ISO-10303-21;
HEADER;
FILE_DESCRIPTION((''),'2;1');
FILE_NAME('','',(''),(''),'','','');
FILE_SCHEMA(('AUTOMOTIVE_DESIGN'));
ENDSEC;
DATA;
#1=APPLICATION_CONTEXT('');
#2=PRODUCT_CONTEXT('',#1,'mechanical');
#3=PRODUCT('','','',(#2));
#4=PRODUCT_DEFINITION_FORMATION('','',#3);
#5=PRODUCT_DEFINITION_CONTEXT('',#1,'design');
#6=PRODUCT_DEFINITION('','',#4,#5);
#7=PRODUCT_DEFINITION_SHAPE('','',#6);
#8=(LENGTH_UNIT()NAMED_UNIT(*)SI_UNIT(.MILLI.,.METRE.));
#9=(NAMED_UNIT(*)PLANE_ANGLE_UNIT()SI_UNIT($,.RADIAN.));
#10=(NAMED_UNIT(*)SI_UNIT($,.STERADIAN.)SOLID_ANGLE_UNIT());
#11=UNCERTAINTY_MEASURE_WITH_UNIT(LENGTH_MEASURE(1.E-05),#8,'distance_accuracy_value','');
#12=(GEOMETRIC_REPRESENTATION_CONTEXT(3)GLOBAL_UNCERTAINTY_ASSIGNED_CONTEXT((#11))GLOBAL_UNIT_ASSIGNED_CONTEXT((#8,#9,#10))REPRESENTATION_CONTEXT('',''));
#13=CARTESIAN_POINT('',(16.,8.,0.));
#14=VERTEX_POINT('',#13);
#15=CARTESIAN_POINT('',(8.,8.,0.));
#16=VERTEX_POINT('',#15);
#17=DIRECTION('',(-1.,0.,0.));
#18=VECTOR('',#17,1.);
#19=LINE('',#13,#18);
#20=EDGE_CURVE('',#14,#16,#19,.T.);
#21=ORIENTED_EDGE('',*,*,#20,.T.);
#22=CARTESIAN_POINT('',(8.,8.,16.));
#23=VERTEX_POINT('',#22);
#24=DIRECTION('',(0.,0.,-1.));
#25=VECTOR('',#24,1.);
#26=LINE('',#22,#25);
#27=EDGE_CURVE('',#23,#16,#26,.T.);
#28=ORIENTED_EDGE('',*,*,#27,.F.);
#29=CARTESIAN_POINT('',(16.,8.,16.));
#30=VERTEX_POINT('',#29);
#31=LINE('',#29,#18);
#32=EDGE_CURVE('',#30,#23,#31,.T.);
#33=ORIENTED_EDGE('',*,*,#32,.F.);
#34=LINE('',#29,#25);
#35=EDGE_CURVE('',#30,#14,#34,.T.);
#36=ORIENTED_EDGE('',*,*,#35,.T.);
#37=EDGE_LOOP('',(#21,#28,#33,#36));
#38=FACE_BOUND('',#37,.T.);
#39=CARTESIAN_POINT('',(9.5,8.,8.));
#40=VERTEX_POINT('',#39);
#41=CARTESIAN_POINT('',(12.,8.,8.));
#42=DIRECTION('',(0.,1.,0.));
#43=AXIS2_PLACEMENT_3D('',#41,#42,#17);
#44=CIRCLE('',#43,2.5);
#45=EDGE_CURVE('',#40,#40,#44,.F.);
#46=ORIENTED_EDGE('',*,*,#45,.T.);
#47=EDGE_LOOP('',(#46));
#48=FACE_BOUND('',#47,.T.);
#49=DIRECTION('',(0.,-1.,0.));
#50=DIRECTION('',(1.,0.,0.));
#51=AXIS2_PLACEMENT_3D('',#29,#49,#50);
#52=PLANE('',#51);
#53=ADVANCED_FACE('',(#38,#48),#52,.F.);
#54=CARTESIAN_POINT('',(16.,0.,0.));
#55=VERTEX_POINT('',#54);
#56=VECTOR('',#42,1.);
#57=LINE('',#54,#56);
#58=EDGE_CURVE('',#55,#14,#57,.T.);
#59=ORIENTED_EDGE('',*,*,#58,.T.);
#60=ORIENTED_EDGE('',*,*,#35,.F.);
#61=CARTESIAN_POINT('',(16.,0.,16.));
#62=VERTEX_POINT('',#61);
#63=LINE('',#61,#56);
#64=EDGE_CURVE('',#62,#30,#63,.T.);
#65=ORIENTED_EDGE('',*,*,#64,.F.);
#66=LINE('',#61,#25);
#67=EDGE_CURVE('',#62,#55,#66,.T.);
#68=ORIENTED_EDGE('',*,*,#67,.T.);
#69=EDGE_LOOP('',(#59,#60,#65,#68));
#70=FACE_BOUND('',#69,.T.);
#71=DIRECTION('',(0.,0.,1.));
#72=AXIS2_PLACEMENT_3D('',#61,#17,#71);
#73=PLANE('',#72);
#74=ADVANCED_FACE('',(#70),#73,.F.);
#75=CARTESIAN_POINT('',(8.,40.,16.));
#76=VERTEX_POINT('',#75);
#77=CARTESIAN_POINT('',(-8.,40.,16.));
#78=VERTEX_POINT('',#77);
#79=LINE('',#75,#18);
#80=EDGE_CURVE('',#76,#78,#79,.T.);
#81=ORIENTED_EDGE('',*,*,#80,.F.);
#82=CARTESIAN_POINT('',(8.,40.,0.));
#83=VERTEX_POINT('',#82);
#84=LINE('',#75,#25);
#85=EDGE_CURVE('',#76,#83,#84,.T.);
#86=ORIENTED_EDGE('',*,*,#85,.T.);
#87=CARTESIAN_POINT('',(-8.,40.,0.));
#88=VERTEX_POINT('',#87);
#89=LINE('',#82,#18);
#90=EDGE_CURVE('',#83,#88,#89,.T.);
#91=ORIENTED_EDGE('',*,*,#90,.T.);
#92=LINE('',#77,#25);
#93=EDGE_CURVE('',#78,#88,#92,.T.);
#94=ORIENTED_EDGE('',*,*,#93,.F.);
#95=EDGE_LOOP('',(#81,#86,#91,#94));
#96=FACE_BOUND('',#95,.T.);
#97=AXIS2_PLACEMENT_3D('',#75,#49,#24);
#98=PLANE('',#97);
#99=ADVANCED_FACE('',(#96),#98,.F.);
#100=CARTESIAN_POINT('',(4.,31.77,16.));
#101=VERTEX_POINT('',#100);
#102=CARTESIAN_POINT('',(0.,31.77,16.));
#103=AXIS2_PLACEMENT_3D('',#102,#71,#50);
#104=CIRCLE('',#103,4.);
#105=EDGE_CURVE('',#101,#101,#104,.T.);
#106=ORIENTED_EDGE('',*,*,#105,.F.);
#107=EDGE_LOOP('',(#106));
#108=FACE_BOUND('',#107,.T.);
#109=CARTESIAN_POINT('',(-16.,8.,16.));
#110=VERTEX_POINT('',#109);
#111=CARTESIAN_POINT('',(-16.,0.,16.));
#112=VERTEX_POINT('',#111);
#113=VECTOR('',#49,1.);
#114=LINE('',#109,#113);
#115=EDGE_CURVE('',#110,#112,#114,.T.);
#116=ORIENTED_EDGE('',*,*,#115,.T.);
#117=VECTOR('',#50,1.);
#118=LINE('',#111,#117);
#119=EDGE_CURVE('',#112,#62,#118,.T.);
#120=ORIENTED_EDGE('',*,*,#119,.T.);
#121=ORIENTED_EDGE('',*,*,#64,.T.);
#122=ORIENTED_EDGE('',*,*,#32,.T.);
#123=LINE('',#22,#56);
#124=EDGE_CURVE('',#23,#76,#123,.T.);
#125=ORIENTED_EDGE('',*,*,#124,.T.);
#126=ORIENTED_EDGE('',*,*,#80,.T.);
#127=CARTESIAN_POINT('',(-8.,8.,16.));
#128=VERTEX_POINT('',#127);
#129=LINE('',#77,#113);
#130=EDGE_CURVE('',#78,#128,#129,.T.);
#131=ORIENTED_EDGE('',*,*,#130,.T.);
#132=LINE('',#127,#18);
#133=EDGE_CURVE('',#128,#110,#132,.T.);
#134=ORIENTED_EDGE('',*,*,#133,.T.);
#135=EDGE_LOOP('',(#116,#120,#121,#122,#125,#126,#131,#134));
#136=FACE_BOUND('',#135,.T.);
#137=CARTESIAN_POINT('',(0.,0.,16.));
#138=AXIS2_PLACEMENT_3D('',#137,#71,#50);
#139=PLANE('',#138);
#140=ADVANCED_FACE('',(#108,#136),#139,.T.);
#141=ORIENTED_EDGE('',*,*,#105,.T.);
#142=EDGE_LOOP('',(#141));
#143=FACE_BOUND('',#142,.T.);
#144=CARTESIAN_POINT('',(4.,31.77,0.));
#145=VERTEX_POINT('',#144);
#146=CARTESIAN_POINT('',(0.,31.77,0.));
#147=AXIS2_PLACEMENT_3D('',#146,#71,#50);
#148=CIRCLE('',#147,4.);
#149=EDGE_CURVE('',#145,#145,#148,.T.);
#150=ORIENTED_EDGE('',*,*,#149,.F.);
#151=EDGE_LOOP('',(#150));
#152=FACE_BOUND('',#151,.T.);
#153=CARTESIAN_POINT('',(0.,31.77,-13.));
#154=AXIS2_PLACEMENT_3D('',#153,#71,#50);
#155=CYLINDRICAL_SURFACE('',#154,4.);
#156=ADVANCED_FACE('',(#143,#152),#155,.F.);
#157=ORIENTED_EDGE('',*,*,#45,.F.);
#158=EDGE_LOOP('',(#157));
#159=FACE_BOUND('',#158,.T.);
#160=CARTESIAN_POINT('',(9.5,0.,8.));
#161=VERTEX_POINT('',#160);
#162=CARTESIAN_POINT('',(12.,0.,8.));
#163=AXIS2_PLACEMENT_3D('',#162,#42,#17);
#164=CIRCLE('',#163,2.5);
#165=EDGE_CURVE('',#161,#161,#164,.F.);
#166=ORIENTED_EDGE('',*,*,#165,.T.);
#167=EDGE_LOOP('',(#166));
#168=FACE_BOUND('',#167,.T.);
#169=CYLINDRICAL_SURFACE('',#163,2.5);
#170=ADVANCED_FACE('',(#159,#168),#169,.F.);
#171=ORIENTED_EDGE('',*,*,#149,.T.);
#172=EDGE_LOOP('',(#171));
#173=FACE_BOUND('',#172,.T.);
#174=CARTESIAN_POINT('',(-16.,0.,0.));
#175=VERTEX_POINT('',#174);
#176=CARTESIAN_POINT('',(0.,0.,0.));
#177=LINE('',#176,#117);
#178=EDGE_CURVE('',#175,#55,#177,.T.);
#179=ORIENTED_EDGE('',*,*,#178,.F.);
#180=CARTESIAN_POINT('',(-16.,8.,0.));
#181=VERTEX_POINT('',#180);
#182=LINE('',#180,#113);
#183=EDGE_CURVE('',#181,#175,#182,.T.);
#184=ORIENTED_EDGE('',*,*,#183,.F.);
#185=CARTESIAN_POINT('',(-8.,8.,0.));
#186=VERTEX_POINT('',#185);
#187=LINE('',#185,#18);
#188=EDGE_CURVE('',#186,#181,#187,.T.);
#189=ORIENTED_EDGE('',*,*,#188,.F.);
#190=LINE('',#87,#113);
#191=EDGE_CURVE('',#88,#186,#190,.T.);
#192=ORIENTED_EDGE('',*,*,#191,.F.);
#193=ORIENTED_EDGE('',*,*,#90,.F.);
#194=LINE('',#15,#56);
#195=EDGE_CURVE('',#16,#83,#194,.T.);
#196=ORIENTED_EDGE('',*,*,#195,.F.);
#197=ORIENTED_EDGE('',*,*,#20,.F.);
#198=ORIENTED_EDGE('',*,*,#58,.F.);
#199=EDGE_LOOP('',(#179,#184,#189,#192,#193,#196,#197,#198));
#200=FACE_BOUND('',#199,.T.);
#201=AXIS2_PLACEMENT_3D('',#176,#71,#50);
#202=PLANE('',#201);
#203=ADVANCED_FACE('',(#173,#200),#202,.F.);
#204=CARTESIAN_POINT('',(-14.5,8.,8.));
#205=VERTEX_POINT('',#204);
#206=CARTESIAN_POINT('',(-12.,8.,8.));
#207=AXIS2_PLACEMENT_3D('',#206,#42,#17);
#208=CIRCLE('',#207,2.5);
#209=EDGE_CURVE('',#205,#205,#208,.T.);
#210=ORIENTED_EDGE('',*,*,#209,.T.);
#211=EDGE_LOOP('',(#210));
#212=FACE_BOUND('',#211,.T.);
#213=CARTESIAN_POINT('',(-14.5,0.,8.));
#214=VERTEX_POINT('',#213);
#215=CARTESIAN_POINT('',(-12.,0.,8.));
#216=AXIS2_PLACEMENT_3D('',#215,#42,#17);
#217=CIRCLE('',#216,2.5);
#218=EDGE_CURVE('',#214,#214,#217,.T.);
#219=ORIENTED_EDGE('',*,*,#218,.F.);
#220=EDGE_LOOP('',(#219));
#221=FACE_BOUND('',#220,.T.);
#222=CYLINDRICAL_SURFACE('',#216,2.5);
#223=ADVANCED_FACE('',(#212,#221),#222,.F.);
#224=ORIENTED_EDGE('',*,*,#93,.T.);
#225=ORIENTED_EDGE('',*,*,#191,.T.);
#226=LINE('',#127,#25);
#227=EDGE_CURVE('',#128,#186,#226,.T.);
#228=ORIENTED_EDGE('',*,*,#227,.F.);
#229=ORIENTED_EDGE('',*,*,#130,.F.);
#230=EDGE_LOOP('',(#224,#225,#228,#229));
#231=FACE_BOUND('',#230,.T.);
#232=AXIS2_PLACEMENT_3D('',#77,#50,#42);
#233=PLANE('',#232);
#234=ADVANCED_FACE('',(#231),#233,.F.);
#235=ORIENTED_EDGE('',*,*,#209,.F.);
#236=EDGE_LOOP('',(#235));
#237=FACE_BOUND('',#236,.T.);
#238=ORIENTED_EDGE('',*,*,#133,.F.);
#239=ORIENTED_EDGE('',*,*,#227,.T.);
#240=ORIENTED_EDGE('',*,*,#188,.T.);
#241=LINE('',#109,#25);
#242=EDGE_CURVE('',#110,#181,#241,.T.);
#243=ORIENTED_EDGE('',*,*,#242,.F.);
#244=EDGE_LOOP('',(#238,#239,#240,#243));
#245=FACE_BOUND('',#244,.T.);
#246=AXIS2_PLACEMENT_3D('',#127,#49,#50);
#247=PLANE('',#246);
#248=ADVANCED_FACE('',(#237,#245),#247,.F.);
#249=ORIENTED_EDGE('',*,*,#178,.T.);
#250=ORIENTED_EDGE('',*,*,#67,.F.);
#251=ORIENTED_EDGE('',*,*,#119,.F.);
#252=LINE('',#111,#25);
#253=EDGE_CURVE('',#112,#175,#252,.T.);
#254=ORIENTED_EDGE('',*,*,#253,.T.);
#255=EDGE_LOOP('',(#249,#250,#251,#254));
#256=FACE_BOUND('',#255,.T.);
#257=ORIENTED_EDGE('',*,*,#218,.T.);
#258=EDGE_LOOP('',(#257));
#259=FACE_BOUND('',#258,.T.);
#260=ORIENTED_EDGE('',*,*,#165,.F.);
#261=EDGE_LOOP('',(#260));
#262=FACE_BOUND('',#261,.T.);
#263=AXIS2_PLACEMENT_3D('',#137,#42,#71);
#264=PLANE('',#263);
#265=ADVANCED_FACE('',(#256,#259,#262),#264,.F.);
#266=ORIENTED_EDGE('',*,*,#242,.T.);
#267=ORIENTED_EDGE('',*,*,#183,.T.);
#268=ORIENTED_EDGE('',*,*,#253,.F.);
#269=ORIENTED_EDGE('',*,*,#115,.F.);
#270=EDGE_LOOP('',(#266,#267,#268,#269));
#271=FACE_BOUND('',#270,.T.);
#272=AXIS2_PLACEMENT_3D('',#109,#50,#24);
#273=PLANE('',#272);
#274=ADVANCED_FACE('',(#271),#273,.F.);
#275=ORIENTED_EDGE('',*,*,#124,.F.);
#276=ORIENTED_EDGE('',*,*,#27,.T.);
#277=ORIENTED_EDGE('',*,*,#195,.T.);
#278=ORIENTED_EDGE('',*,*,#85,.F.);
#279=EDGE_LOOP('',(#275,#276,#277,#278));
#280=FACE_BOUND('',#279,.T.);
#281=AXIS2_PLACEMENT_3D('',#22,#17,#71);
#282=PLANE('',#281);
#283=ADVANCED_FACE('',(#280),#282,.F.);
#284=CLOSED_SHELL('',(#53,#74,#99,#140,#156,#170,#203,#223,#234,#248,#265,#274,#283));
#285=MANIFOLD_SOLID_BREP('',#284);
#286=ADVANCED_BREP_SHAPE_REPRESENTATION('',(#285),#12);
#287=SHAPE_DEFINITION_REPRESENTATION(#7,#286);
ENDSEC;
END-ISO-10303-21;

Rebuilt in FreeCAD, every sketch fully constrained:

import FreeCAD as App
import Part
import Sketcher

doc = App.newDocument("Part")
body = doc.addObject("PartDesign::Body", "Body")

sketch1 = body.newObject("Sketcher::SketchObject", "Sketch")
sketch1.AttachmentSupport = (doc.getObject("XY_Plane"), [""])
sketch1.MapMode = "FlatFace"
sketch1.addGeometry([
    Part.LineSegment(App.Vector(16, 0, 0), App.Vector(16, 8, 0)),
    Part.LineSegment(App.Vector(16, 8, 0), App.Vector(8, 8, 0)),
    Part.LineSegment(App.Vector(8, 8, 0), App.Vector(8, 40, 0)),
    Part.LineSegment(App.Vector(8, 40, 0), App.Vector(-8, 40, 0)),
    Part.LineSegment(App.Vector(-8, 40, 0), App.Vector(-8, 8, 0)),
    Part.LineSegment(App.Vector(-8, 8, 0), App.Vector(-16, 8, 0)),
    Part.LineSegment(App.Vector(-16, 8, 0), App.Vector(-16, 0, 0)),
    Part.LineSegment(App.Vector(-16, 0, 0), App.Vector(16, 0, 0)),
], False)
sketch1.addConstraint([
    Sketcher.Constraint("Coincident", 0, 2, 1, 1),
    Sketcher.Constraint("Coincident", 1, 2, 2, 1),
    Sketcher.Constraint("Coincident", 2, 2, 3, 1),
    Sketcher.Constraint("Coincident", 3, 2, 4, 1),
    Sketcher.Constraint("Coincident", 4, 2, 5, 1),
    Sketcher.Constraint("Coincident", 5, 2, 6, 1),
    Sketcher.Constraint("Coincident", 6, 2, 7, 1),
    Sketcher.Constraint("Coincident", 7, 2, 0, 1),
    Sketcher.Constraint("Vertical", 0),
    Sketcher.Constraint("Horizontal", 1),
    Sketcher.Constraint("Vertical", 2),
    Sketcher.Constraint("Horizontal", 3),
    Sketcher.Constraint("Vertical", 4),
    Sketcher.Constraint("Horizontal", 5),
    Sketcher.Constraint("Vertical", 6),
    Sketcher.Constraint("Horizontal", 7),
    Sketcher.Constraint("Symmetric", 6, 2, 7, 2, -1, 1),
    Sketcher.Constraint("Symmetric", 1, 2, 4, 2, -2),
    Sketcher.Constraint("Equal", 5, 0),
    Sketcher.Constraint("Equal", 7, 2),
    Sketcher.Constraint("DistanceX", 1, 2, 1, 1, 8.0),
    Sketcher.Constraint("DistanceX", 3, 2, 3, 1, 16.0),
])
pad1 = body.newObject("PartDesign::Pad", "Pad")
pad1.Profile = sketch1
pad1.Length = 16

sketch2 = body.newObject("Sketcher::SketchObject", "Sketch001")
sketch2.AttachmentSupport = (doc.getObject("XZ_Plane"), [""])
sketch2.MapMode = "FlatFace"
sketch2.AttachmentOffset = App.Placement(App.Vector(0, 0, -8), App.Rotation())
sketch2.addGeometry([
    Part.Circle(App.Vector(-12, 8, 0), App.Vector(0, 0, 1), 2.5),
    Part.Circle(App.Vector(12, 8, 0), App.Vector(0, 0, 1), 2.5),
], False)
sketch2.addConstraint([
    Sketcher.Constraint("Equal", 0, 1),
    Sketcher.Constraint("Symmetric", 0, 3, 1, 3, -2),
    Sketcher.Constraint("Diameter", 0, 5.0),
    Sketcher.Constraint("DistanceX", 0, 3, -1, 1, 12.0),
    Sketcher.Constraint("DistanceY", -1, 1, 0, 3, 8.0),
])
pocket1 = body.newObject("PartDesign::Pocket", "Pocket")
pocket1.Profile = sketch2
pocket1.Type = "ThroughAll"
pocket1.Reversed = True

sketch3 = body.newObject("Sketcher::SketchObject", "Sketch002")
sketch3.AttachmentSupport = (doc.getObject("XY_Plane"), [""])
sketch3.MapMode = "FlatFace"
sketch3.AttachmentOffset = App.Placement(App.Vector(0, 0, 16), App.Rotation())
sketch3.addGeometry(Part.Circle(App.Vector(0, 31.8, 0), App.Vector(0, 0, 1), 4), False)
sketch3.addConstraint([
    Sketcher.Constraint("PointOnObject", 0, 3, -2),
    Sketcher.Constraint("Diameter", 0, 8.0),
    Sketcher.Constraint("DistanceY", -1, 1, 0, 3, 31.77),
])
pocket2 = body.newObject("PartDesign::Pocket", "Pocket001")
pocket2.Profile = sketch3
pocket2.Length = 29

doc.recompute()
